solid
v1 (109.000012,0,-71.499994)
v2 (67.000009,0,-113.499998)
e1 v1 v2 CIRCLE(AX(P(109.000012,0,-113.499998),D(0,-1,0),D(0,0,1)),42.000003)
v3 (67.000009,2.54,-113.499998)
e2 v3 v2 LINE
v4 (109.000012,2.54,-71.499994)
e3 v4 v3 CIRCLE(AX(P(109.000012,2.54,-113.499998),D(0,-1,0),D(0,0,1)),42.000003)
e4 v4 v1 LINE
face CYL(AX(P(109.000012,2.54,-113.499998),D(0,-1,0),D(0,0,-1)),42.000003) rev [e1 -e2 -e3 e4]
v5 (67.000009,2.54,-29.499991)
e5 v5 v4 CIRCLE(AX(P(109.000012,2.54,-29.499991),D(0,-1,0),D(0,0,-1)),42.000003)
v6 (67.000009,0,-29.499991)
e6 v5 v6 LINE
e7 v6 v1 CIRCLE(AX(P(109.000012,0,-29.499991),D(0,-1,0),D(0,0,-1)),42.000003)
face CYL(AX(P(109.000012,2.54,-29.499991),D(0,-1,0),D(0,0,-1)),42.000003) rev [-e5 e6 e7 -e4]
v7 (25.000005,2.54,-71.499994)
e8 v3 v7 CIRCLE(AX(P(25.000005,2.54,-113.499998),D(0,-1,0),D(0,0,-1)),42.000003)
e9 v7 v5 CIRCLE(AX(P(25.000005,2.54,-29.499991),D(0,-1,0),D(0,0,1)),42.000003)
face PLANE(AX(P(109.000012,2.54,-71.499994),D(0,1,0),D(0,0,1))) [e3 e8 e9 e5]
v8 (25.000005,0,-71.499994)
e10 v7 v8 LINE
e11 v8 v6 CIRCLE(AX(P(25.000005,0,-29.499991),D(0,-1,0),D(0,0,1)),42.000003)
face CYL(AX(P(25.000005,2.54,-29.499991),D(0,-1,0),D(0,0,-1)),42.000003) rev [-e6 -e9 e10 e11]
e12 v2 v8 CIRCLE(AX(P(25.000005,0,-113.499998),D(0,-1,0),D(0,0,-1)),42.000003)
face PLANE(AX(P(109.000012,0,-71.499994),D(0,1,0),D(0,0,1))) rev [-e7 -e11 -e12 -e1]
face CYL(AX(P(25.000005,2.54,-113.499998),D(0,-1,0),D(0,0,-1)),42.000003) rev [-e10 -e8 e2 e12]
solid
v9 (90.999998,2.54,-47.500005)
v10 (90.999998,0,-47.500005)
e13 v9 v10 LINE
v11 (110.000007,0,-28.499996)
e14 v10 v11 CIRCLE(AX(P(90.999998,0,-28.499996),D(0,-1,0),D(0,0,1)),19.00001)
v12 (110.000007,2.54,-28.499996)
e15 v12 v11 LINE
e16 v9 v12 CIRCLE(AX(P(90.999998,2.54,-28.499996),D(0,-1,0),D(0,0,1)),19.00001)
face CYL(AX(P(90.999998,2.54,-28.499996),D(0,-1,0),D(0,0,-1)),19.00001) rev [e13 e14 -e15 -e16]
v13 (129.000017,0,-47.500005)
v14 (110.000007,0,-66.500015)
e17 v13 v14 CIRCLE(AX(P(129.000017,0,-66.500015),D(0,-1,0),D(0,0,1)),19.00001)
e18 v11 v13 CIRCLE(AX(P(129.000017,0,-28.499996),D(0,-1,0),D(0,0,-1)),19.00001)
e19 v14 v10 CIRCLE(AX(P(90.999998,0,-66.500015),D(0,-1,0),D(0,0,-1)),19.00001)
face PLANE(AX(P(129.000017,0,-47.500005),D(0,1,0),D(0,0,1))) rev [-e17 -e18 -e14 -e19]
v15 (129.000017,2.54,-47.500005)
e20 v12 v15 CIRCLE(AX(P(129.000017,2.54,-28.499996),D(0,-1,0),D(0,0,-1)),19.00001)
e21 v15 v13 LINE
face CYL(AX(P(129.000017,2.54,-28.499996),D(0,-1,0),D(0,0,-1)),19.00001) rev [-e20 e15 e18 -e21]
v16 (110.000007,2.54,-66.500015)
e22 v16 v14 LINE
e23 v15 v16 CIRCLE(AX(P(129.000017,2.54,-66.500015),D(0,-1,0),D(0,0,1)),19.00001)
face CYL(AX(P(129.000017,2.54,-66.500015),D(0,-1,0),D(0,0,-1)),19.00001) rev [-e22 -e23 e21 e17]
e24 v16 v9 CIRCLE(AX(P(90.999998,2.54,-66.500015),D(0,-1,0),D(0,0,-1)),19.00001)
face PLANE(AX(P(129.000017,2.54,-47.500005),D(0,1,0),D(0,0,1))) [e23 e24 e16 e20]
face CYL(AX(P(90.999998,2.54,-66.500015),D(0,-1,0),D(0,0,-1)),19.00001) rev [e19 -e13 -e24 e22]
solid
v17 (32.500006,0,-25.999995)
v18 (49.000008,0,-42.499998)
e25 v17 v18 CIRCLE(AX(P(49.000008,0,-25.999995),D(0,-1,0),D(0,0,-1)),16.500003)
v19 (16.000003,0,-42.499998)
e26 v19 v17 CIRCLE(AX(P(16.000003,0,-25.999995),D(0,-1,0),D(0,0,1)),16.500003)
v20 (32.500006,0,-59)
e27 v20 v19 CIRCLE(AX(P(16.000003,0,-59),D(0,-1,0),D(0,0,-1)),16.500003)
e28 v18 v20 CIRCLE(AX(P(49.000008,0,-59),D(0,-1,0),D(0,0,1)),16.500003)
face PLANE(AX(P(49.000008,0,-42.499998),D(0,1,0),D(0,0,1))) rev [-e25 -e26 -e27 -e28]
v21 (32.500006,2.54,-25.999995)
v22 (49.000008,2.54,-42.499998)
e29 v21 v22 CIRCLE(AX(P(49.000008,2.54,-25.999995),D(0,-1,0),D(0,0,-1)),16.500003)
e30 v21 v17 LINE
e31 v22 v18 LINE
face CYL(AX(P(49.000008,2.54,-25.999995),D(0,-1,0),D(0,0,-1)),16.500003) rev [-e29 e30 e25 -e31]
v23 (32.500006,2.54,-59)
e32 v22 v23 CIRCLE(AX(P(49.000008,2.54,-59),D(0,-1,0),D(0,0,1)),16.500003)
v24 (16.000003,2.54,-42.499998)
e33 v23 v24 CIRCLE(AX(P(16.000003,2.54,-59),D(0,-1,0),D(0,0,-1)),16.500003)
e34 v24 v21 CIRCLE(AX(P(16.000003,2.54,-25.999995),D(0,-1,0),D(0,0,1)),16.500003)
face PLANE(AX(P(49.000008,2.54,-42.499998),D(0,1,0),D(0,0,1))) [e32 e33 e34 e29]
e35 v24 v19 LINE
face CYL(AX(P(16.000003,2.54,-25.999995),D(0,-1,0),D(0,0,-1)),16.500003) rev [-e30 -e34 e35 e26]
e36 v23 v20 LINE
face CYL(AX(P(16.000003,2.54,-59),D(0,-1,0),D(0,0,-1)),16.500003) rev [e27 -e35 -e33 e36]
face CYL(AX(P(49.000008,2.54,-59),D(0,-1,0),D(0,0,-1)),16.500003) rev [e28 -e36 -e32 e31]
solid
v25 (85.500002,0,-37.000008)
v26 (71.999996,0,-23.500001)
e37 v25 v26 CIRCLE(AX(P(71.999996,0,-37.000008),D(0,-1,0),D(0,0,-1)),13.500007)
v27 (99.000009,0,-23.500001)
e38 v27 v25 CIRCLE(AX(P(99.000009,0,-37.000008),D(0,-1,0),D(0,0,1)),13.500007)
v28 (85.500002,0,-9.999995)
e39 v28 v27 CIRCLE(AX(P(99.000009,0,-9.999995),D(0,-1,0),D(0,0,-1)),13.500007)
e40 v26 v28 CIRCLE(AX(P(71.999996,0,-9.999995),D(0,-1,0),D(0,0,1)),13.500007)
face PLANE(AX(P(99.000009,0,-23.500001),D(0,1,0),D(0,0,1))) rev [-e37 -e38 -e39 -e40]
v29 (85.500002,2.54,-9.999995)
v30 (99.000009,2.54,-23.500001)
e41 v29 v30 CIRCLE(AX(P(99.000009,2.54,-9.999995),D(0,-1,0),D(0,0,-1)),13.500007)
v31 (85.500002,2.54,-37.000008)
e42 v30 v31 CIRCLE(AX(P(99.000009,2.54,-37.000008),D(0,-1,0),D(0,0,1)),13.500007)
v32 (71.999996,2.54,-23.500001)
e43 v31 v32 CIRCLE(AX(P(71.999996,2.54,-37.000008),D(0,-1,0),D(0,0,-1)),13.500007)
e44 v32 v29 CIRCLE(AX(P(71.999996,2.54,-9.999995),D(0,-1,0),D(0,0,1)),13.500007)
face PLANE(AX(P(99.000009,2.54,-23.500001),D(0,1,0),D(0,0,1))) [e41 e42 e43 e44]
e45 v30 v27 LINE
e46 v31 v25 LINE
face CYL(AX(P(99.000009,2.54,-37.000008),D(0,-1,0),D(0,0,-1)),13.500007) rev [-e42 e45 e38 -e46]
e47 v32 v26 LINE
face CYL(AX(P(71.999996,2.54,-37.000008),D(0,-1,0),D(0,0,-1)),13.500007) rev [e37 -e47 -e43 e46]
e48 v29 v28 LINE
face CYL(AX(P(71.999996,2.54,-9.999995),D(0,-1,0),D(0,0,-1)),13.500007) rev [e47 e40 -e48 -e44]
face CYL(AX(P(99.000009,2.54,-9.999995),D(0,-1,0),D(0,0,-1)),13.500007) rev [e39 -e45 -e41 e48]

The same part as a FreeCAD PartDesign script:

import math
import FreeCAD as App
import Part
import Sketcher

V = App.Vector
Q = App.Units.Quantity

doc = App.newDocument("Part")
body = doc.addObject("PartDesign::Body", "Body")

sketch1 = body.newObject("Sketcher::SketchObject", "Sketch")
sketch1.AttachmentSupport = (doc.getObject("XZ_Plane"), [""])
sketch1.MapMode = "FlatFace"
sketch1.addGeometry(Part.ArcOfCircle(Part.Circle(V(25.000005, -113.499998, 0), V(0, 0, 1), 42.000003), math.radians(0), math.radians(90)), False)
sketch1.addGeometry(Part.ArcOfCircle(Part.Circle(V(25.000005, -29.499991, 0), V(0, 0, 1), 42.000003), math.radians(-90), math.radians(0)), False)
sketch1.addGeometry(Part.ArcOfCircle(Part.Circle(V(109.000012, -29.499991, 0), V(0, 0, 1), 42.000003), math.radians(-180), math.radians(-90)), False)
sketch1.addGeometry(Part.ArcOfCircle(Part.Circle(V(109.000012, -113.499998, 0), V(0, 0, 1), 42.000003), math.radians(90), math.radians(180)), False)
sketch1.addConstraint(Sketcher.Constraint("Tangent", 0, 2, 1, 1))
sketch1.addConstraint(Sketcher.Constraint("Tangent", 1, 2, 2, 1))
sketch1.addConstraint(Sketcher.Constraint("Tangent", 2, 2, 3, 1))
sketch1.addConstraint(Sketcher.Constraint("Tangent", 3, 2, 0, 1))
sketch1.addConstraint(Sketcher.Constraint("Equal", 0, 1))
sketch1.addConstraint(Sketcher.Constraint("Equal", 1, 2))
sketch1.addConstraint(Sketcher.Constraint("Equal", 2, 3))
sketch1.addConstraint(Sketcher.Constraint("Horizontal", 1, 3, 2, 3))
sketch1.addConstraint(Sketcher.Constraint("Vertical", 0, 3, 1, 3))
sketch1.addConstraint(Sketcher.Constraint("Radius", 0, Q("42.000003 mm")))
sketch1.addConstraint(Sketcher.Constraint("DistanceY", 1, 3, -1, 1, Q("29.499991 mm")))
sketch1.addConstraint(Sketcher.Constraint("DistanceX", -1, 1, 2, 3, Q("109.000012 mm")))
pad1 = body.newObject("PartDesign::Pad", "Pad")
pad1.Profile = sketch1
pad1.Length = Q("0.1 in")
pad1.Reversed = True
body2 = doc.addObject("PartDesign::Body", "Body001")

sketch2 = body2.newObject("Sketcher::SketchObject", "Sketch001")
sketch2.AttachmentSupport = (doc.getObject("XZ_Plane001"), [""])
sketch2.MapMode = "FlatFace"
sketch2.addGeometry(Part.ArcOfCircle(Part.Circle(V(90.999998, -66.500015, 0), V(0, 0, 1), 19.00001), math.radians(0), math.radians(90)), False)
sketch2.addGeometry(Part.ArcOfCircle(Part.Circle(V(90.999998, -28.499996, 0), V(0, 0, 1), 19.00001), math.radians(-90), math.radians(0)), False)
sketch2.addGeometry(Part.ArcOfCircle(Part.Circle(V(129.000017, -28.499996, 0), V(0, 0, 1), 19.00001), math.radians(180), math.radians(270)), False)
sketch2.addGeometry(Part.ArcOfCircle(Part.Circle(V(129.000017, -66.500015, 0), V(0, 0, 1), 19.00001), math.radians(90), math.radians(180)), False)
sketch2.addConstraint(Sketcher.Constraint("Tangent", 0, 2, 1, 1))
sketch2.addConstraint(Sketcher.Constraint("Tangent", 1, 2, 2, 1))
sketch2.addConstraint(Sketcher.Constraint("Tangent", 2, 2, 3, 1))
sketch2.addConstraint(Sketcher.Constraint("Tangent", 3, 2, 0, 1))
sketch2.addConstraint(Sketcher.Constraint("Equal", 0, 1))
sketch2.addConstraint(Sketcher.Constraint("Equal", 1, 2))
sketch2.addConstraint(Sketcher.Constraint("Equal", 2, 3))
sketch2.addConstraint(Sketcher.Constraint("Horizontal", 1, 3, 2, 3))
sketch2.addConstraint(Sketcher.Constraint("Vertical", 0, 3, 1, 3))
sketch2.addConstraint(Sketcher.Constraint("Radius", 0, Q("19.00001 mm")))
sketch2.addConstraint(Sketcher.Constraint("DistanceX", -1, 1, 0, 3, Q("90.999998 mm")))
sketch2.addConstraint(Sketcher.Constraint("DistanceY", 0, 3, -1, 1, Q("66.500015 mm")))
pad2 = body2.newObject("PartDesign::Pad", "Pad001")
pad2.Profile = sketch2
pad2.Length = Q("0.1 in")
pad2.Reversed = True
body3 = doc.addObject("PartDesign::Body", "Body002")

sketch3 = body3.newObject("Sketcher::SketchObject", "Sketch002")
sketch3.AttachmentSupport = (doc.getObject("XZ_Plane002"), [""])
sketch3.MapMode = "FlatFace"
sketch3.addGeometry(Part.ArcOfCircle(Part.Circle(V(71.999996, -37.000008, 0), V(0, 0, 1), 13.500007), math.radians(0), math.radians(90)), False)
sketch3.addGeometry(Part.ArcOfCircle(Part.Circle(V(71.999996, -9.999995, 0), V(0, 0, 1), 13.500007), math.radians(-90), math.radians(0)), False)
sketch3.addGeometry(Part.ArcOfCircle(Part.Circle(V(99.000009, -9.999995, 0), V(0, 0, 1), 13.500007), math.radians(-180), math.radians(-90)), False)
sketch3.addGeometry(Part.ArcOfCircle(Part.Circle(V(99.000009, -37.000008, 0), V(0, 0, 1), 13.500007), math.radians(90), math.radians(180)), False)
sketch3.addConstraint(Sketcher.Constraint("Tangent", 0, 2, 1, 1))
sketch3.addConstraint(Sketcher.Constraint("Tangent", 1, 2, 2, 1))
sketch3.addConstraint(Sketcher.Constraint("Tangent", 2, 2, 3, 1))
sketch3.addConstraint(Sketcher.Constraint("Tangent", 3, 2, 0, 1))
sketch3.addConstraint(Sketcher.Constraint("Equal", 0, 1))
sketch3.addConstraint(Sketcher.Constraint("Equal", 1, 2))
sketch3.addConstraint(Sketcher.Constraint("Equal", 2, 3))
sketch3.addConstraint(Sketcher.Constraint("Horizontal", 1, 3, 2, 3))
sketch3.addConstraint(Sketcher.Constraint("Vertical", 0, 3, 1, 3))
sketch3.addConstraint(Sketcher.Constraint("Radius", 0, Q("13.500007 mm")))
sketch3.addConstraint(Sketcher.Constraint("DistanceY", 0, 2, -1, 1, Q("23.500001 mm")))
sketch3.addConstraint(Sketcher.Constraint("DistanceX", -1, 1, 2, 3, Q("99.000009 mm")))
pad3 = body3.newObject("PartDesign::Pad", "Pad002")
pad3.Profile = sketch3
pad3.Length = Q("0.1 in")
pad3.Reversed = True
body4 = doc.addObject("PartDesign::Body", "Body003")

sketch4 = body4.newObject("Sketcher::SketchObject", "Sketch003")
sketch4.AttachmentSupport = (doc.getObject("XZ_Plane003"), [""])
sketch4.MapMode = "FlatFace"
sketch4.addGeometry(Part.ArcOfCircle(Part.Circle(V(16.000003, -59, 0), V(0, 0, 1), 16.500003), math.radians(0), math.radians(90)), False)
sketch4.addGeometry(Part.ArcOfCircle(Part.Circle(V(16.000003, -25.999995, 0), V(0, 0, 1), 16.500003), math.radians(-90), math.radians(0)), False)
sketch4.addGeometry(Part.ArcOfCircle(Part.Circle(V(49.000008, -25.999995, 0), V(0, 0, 1), 16.500003), math.radians(180), math.radians(270)), False)
sketch4.addGeometry(Part.ArcOfCircle(Part.Circle(V(49.000008, -59, 0), V(0, 0, 1), 16.500003), math.radians(90), math.radians(180)), False)
sketch4.addConstraint(Sketcher.Constraint("Tangent", 0, 2, 1, 1))
sketch4.addConstraint(Sketcher.Constraint("Tangent", 1, 2, 2, 1))
sketch4.addConstraint(Sketcher.Constraint("Tangent", 2, 2, 3, 1))
sketch4.addConstraint(Sketcher.Constraint("Tangent", 3, 2, 0, 1))
sketch4.addConstraint(Sketcher.Constraint("Equal", 0, 1))
sketch4.addConstraint(Sketcher.Constraint("Equal", 1, 2))
sketch4.addConstraint(Sketcher.Constraint("Equal", 2, 3))
sketch4.addConstraint(Sketcher.Constraint("Horizontal", 1, 3, 2, 3))
sketch4.addConstraint(Sketcher.Constraint("Vertical", 0, 3, 1, 3))
sketch4.addConstraint(Sketcher.Constraint("Radius", 0, Q("16.500003 mm")))
sketch4.addConstraint(Sketcher.Constraint("DistanceY", 0, 3, -1, 1, Q("59 mm")))
sketch4.addConstraint(Sketcher.Constraint("DistanceX", -1, 1, 2, 3, Q("49.000008 mm")))
pad4 = body4.newObject("PartDesign::Pad", "Pad003")
pad4.Profile = sketch4
pad4.Length = Q("0.1 in")
pad4.Reversed = True

doc.recompute()
